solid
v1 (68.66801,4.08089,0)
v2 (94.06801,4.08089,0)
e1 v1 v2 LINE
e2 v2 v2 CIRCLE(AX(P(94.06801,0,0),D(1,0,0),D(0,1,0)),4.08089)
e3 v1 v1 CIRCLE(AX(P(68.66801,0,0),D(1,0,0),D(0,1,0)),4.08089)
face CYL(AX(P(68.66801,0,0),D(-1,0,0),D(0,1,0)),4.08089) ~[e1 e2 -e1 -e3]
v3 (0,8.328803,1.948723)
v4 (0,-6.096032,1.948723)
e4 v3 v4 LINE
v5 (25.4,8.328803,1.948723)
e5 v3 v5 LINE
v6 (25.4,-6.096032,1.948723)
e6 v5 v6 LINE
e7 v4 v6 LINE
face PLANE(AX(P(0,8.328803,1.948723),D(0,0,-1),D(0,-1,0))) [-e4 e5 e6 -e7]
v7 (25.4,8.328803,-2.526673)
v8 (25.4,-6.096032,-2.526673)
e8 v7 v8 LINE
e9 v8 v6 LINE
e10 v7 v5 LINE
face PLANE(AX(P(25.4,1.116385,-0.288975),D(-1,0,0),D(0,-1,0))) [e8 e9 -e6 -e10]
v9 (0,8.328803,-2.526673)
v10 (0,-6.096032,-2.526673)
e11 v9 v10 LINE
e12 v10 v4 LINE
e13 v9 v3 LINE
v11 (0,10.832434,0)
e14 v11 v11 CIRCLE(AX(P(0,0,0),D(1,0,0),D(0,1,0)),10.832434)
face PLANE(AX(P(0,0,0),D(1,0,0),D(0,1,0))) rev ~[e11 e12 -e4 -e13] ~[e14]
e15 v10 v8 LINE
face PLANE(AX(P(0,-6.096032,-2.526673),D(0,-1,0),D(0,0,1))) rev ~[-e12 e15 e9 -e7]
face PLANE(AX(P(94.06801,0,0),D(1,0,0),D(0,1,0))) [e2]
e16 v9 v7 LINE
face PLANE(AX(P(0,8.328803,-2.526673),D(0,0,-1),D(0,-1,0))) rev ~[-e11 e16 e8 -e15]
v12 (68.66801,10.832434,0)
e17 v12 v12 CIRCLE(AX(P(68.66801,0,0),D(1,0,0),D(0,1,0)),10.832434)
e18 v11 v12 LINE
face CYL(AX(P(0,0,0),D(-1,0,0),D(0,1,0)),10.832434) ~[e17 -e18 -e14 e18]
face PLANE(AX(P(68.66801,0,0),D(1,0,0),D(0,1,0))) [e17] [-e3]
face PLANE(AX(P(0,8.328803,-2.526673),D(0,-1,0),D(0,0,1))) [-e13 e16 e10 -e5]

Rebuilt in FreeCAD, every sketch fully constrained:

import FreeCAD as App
import Part
import Sketcher

V = App.Vector
Q = App.Units.Quantity


def add_polygon(sketch, points):
    """Adds a closed chain of lines whose ends are joined by coincident constraints."""
    first, n = sketch.GeometryCount, len(points)
    for a, b in zip(points, points[1:] + points[:1]):
        sketch.addGeometry(Part.LineSegment(App.Vector(*a, 0), App.Vector(*b, 0)), False)
    for i in range(n):
        sketch.addConstraint(Sketcher.Constraint("Coincident", first + i, 2, first + (i + 1) % n, 1))

doc = App.newDocument("Part")
body = doc.addObject("PartDesign::Body", "Body")

# Sketch on YZ plane
sketch1 = doc.addObject("Sketcher::SketchObject", "Sketch")
body.addObject(sketch1)
sketch1.AttachmentSupport = (doc.YZ_Plane, [""])
sketch1.MapMode = "FlatFace"
sketch1.addGeometry(Part.Circle(V(0, 0, 0), V(0, 0, 1), 11), False)
sketch1.addConstraint(Sketcher.Constraint("Coincident", 0, 3, -1, 1))
sketch1.addConstraint(Sketcher.Constraint("Diameter", 0, Q("21.664868 mm")))
pad1 = doc.addObject("PartDesign::Pad", "Pad")
body.addObject(pad1)
pad1.Profile = sketch1
pad1.Length = 68.66801

# Sketch on YZ plane
sketch2 = doc.addObject("Sketcher::SketchObject", "Sketch001")
body.addObject(sketch2)
sketch2.AttachmentSupport = (doc.YZ_Plane, [""])
sketch2.MapMode = "FlatFace"
sketch2.AttachmentOffset = App.Placement(V(0, 0, 68.66801), App.Rotation())
sketch2.addGeometry(Part.Circle(V(0, 0, 0), V(0, 0, 1), 4.1), False)
sketch2.addConstraint(Sketcher.Constraint("Coincident", 0, 3, -1, 1))
sketch2.addConstraint(Sketcher.Constraint("Diameter", 0, Q("8.16178 mm")))
pad2 = doc.addObject("PartDesign::Pad", "Pad001")
body.addObject(pad2)
pad2.Profile = sketch2
pad2.Length = Q("1 in")

# Sketch on YZ plane
sketch3 = doc.addObject("Sketcher::SketchObject", "Sketch002")
body.addObject(sketch3)
sketch3.AttachmentSupport = (doc.YZ_Plane, [""])
sketch3.MapMode = "FlatFace"
add_polygon(sketch3, [(8.3, 1.9), (8.3, -2.5), (-6.1, -2.5), (-6.1, 1.9)])  # lines 0-3
sketch3.addConstraint(Sketcher.Constraint("Vertical", 0))
sketch3.addConstraint(Sketcher.Constraint("Horizontal", 1))
sketch3.addConstraint(Sketcher.Constraint("Vertical", 2))
sketch3.addConstraint(Sketcher.Constraint("Horizontal", 3))
sketch3.addConstraint(Sketcher.Constraint("DistanceX", 1, 2, 1, 1, Q("14.424835 mm")))
sketch3.addConstraint(Sketcher.Constraint("DistanceY", 0, 2, 0, 1, Q("4.475396 mm")))
sketch3.addConstraint(Sketcher.Constraint("DistanceX", -1, 1, 0, 2, Q("8.328803 mm")))
sketch3.addConstraint(Sketcher.Constraint("DistanceY", 0, 2, -1, 1, Q("2.526673 mm")))
pocket1 = doc.addObject("PartDesign::Pocket", "Pocket")
body.addObject(pocket1)
pocket1.Profile = sketch3
pocket1.Length = Q("1 in")
pocket1.Reversed = True

doc.recompute()
